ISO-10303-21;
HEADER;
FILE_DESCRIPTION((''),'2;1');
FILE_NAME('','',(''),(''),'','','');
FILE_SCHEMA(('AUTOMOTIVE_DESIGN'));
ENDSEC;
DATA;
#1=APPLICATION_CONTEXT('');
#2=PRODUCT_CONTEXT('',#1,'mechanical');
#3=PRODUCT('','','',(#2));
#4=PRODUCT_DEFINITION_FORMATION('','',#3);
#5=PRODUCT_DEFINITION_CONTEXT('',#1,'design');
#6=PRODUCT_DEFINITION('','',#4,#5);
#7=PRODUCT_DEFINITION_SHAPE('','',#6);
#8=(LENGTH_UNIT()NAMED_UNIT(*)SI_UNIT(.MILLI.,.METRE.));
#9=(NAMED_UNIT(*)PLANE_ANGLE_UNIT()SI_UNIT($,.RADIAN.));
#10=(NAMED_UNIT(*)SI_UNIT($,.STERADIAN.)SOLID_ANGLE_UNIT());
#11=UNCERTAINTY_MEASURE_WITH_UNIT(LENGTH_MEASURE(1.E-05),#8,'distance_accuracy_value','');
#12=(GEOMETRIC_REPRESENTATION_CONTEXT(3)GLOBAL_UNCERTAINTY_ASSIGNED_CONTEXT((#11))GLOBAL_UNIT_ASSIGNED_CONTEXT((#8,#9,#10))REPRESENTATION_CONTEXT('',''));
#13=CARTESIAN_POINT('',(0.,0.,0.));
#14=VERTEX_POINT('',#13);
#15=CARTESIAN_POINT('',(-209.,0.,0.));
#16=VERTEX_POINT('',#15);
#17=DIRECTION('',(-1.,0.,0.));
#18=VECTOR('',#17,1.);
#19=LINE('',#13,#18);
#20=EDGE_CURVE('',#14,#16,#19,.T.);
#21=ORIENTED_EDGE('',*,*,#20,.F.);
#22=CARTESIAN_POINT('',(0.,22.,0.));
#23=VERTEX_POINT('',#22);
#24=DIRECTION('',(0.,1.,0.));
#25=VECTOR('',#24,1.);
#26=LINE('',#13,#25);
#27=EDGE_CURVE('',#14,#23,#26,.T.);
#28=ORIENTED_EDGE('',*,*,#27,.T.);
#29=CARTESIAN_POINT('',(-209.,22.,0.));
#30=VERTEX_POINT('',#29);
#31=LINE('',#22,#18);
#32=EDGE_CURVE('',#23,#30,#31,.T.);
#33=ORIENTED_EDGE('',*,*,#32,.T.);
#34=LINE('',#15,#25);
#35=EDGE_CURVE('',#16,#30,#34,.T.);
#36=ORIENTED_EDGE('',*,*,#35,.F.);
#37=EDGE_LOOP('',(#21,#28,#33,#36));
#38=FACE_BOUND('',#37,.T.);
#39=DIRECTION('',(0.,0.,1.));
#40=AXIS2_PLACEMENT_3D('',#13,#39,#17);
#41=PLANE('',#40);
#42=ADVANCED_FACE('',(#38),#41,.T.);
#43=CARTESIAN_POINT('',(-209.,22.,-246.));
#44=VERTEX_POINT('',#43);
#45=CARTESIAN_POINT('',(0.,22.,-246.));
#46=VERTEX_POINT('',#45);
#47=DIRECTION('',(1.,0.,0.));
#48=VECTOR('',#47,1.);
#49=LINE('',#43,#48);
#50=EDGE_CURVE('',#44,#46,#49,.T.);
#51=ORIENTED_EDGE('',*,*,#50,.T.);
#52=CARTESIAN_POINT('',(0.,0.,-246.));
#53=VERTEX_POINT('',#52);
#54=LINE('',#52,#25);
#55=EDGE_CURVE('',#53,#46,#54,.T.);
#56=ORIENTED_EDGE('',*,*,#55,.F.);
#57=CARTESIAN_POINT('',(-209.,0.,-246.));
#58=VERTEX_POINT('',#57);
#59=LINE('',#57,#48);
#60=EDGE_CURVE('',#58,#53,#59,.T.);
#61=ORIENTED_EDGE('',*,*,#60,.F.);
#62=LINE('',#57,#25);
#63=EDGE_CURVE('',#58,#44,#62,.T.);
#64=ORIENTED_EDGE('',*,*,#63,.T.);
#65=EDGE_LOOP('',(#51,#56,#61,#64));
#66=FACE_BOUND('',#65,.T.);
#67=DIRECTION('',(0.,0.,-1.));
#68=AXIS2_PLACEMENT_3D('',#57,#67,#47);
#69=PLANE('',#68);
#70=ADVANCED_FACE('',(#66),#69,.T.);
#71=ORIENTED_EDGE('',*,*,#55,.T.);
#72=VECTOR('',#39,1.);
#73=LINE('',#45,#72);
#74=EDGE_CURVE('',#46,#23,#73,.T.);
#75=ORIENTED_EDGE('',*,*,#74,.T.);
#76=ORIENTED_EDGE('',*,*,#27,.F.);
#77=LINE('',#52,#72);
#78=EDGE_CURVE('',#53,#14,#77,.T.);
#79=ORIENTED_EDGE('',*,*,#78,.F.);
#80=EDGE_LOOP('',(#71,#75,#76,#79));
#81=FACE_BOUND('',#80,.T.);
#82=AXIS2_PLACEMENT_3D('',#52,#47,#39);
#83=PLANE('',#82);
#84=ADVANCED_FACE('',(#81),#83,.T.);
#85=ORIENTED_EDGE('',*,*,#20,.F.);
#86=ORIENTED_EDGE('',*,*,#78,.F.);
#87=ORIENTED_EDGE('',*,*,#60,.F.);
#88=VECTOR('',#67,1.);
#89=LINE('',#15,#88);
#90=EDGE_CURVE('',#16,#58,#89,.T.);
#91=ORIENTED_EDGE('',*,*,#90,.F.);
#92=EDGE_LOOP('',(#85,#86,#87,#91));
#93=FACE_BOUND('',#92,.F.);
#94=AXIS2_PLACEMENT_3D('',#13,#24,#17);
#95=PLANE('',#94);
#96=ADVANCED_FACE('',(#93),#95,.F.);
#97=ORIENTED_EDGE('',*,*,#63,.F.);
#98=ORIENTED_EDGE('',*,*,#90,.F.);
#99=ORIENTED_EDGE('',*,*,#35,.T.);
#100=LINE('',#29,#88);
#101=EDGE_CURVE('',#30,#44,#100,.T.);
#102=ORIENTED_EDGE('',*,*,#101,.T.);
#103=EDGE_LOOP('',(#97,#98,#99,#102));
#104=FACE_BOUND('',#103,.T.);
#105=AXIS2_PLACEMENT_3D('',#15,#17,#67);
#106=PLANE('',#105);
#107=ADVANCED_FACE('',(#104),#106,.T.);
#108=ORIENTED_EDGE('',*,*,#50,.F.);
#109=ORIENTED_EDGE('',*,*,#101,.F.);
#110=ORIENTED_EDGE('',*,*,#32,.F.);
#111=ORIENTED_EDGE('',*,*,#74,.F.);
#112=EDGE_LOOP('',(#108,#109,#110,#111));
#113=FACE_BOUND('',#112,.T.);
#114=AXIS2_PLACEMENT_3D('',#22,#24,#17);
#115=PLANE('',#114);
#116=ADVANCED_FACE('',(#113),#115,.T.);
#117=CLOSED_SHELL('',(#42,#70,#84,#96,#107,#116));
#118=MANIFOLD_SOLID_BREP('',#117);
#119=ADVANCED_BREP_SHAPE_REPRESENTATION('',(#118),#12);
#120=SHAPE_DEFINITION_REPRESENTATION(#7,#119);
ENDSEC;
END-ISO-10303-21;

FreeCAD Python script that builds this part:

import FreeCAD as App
import Part
import Sketcher
Q = App.Units.Quantity

doc = App.newDocument("Part")
params = doc.addObject("Spreadsheet::Sheet", "Params")
for row, (alias, value) in enumerate([
    ("sketch1_width", "209 mm"),
    ("sketch1_height", "246 mm"),
    ("pad1_length", "22 mm"),
], start=1):
    params.set(f"A{row}", alias)
    params.set(f"B{row}", "=" + value)
    params.setAlias(f"B{row}", alias)

body = doc.addObject("PartDesign::Body", "Body")

sketch1 = body.newObject("Sketcher::SketchObject", "Sketch")
sketch1.AttachmentSupport = (doc.getObject("XZ_Plane"), [""])
sketch1.MapMode = "FlatFace"
sketch1.addGeometry([
    Part.LineSegment(App.Vector(-209, 0, 0), App.Vector(0, 0, 0)),
    Part.LineSegment(App.Vector(0, 0, 0), App.Vector(0, -246, 0)),
    Part.LineSegment(App.Vector(0, -246, 0), App.Vector(-209, -246, 0)),
    Part.LineSegment(App.Vector(-209, -246, 0), App.Vector(-209, 0, 0)),
], False)
sketch1.addConstraint([
    Sketcher.Constraint("Coincident", 0, 2, 1, 1),
    Sketcher.Constraint("Coincident", 1, 2, 2, 1),
    Sketcher.Constraint("Coincident", 2, 2, 3, 1),
    Sketcher.Constraint("Coincident", 3, 2, 0, 1),
    Sketcher.Constraint("Horizontal", 0),
    Sketcher.Constraint("Vertical", 1),
    Sketcher.Constraint("Horizontal", 2),
    Sketcher.Constraint("Vertical", 3),
    Sketcher.Constraint("Coincident", 0, 2, -1, 1),
    Sketcher.Constraint("DistanceX", 0, 1, 0, 2, Q("209 mm")),
    Sketcher.Constraint("DistanceY", 1, 2, 1, 1, Q("246 mm")),
])
sketch1.setExpression("Constraints[9]", "Params.sketch1_width")
sketch1.setExpression("Constraints[10]", "Params.sketch1_height")
pad1 = body.newObject("PartDesign::Pad", "Pad")
pad1.Profile = sketch1
pad1.setExpression("Length", "Params.pad1_length")
pad1.Reversed = True

doc.recompute()
